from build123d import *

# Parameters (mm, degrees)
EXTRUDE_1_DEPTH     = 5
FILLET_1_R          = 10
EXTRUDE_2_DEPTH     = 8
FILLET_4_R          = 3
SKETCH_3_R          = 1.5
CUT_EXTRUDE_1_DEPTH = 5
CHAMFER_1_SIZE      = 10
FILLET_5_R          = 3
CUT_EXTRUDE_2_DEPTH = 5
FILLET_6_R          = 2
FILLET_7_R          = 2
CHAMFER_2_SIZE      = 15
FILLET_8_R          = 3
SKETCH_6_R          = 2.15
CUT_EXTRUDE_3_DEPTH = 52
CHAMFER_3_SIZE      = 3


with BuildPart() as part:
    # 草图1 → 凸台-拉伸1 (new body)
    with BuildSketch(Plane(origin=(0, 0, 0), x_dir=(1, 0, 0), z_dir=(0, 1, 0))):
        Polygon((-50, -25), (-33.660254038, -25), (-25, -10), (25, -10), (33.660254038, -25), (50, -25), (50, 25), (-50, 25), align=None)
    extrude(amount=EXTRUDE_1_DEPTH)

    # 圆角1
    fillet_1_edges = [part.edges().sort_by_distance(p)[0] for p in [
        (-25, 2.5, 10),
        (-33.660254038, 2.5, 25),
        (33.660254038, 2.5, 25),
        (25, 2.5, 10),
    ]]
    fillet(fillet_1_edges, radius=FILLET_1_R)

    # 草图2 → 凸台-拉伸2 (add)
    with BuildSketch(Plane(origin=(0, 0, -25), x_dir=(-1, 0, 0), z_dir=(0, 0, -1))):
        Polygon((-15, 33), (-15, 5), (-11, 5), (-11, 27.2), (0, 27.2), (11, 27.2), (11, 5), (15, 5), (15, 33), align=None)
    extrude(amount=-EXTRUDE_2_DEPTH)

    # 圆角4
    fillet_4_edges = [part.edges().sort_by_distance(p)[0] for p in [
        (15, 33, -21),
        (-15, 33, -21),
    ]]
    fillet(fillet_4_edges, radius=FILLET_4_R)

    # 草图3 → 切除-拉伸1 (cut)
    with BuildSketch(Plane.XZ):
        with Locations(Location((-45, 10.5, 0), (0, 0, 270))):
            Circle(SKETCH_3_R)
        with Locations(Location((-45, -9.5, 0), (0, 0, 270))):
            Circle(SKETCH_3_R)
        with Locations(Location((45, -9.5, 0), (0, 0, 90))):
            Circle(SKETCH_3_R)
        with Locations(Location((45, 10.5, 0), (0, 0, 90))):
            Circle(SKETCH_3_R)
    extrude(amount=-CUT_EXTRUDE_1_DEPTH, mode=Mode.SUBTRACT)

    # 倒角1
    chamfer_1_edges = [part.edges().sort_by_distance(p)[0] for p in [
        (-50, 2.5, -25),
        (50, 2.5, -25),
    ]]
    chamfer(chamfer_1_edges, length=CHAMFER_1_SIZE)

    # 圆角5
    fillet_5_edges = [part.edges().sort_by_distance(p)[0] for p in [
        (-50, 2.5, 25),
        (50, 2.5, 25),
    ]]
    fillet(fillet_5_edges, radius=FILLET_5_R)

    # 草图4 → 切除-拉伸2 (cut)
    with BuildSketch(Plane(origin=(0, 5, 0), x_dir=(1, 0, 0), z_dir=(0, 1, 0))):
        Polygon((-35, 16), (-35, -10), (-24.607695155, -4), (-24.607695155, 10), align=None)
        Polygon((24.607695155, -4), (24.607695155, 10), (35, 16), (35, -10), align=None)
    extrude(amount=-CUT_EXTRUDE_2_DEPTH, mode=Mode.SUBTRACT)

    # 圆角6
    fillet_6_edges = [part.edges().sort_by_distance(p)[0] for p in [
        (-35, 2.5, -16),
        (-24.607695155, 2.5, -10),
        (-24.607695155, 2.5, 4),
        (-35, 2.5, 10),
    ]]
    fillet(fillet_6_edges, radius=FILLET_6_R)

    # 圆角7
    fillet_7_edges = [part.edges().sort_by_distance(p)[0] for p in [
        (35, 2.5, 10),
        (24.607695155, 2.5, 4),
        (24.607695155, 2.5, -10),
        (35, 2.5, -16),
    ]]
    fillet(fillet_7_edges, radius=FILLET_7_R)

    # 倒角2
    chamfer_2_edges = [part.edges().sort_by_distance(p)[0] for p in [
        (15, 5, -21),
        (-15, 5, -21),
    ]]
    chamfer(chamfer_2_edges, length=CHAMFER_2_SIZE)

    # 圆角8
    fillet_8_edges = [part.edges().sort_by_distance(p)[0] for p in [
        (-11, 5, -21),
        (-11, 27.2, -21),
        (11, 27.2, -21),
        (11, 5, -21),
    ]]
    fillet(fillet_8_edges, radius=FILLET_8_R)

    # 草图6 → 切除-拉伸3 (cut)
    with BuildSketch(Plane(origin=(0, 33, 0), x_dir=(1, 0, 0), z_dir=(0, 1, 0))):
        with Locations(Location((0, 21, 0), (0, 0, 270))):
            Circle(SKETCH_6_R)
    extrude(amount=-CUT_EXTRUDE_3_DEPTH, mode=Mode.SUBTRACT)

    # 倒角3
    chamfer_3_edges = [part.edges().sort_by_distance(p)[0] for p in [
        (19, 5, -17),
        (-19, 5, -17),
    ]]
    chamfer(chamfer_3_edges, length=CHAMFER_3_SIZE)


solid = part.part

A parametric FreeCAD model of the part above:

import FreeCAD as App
import Part
import Sketcher
from FreeCAD import Vector
Q = App.Units.Quantity


def edges_at(feature, points):
    """Names of the edges that pass closest to the given points."""
    edges = feature.Shape.Edges
    near = lambda p: min(range(len(edges)), key=lambda i: edges[i].distToShape(Part.Vertex(*p))[0])
    return sorted({f"Edge{near(p) + 1}" for p in points})


def add_polygon(sketch, points):
    """Adds a closed chain of lines whose ends are joined by coincident constraints."""
    first, n = sketch.GeometryCount, len(points)
    for a, b in zip(points, points[1:] + points[:1]):
        sketch.addGeometry(Part.LineSegment(App.Vector(*a, 0), App.Vector(*b, 0)), False)
    for i in range(n):
        sketch.addConstraint(Sketcher.Constraint("Coincident", first + i, 2, first + (i + 1) % n, 1))

doc = App.newDocument("Part")
body = doc.addObject("PartDesign::Body", "Body")

# Sketch on XZ plane
sketch1 = body.newObject("Sketcher::SketchObject", "Sketch")
sketch1.AttachmentSupport = (doc.getObject("XZ_Plane"), [""])
sketch1.MapMode = "FlatFace"
add_polygon(sketch1, [(-50, 25), (-34, 25), (-25, 10), (25, 10), (34, 25), (50, 25), (50, -25), (-50, -25)])  # lines 0-7
sketch1.addConstraint([
    Sketcher.Constraint("Horizontal", 0),
    Sketcher.Constraint("Horizontal", 2),
    Sketcher.Constraint("Horizontal", 4),
    Sketcher.Constraint("Vertical", 5),
    Sketcher.Constraint("Horizontal", 6),
    Sketcher.Constraint("Vertical", 7),
    Sketcher.Constraint("Symmetric", 4, 2, 6, 2, -1, 1),
    Sketcher.Constraint("Symmetric", 0, 2, 3, 2, -2),
    Sketcher.Constraint("Equal", 2, 5),
    Sketcher.Constraint("Equal", 1, 3),
    Sketcher.Constraint("DistanceX", 2, 1, 2, 2, Q("50 mm")),
    Sketcher.Constraint("DistanceX", 6, 2, 6, 1, Q("100 mm")),
    Sketcher.Constraint("Angle", 1, Q("-60 deg")),
    Sketcher.Constraint("DistanceY", -1, 1, 1, 2, Q("10 mm")),
])
pad1 = body.newObject("PartDesign::Pad", "Pad")
pad1.Profile = sketch1
pad1.Length = 5
pad1.Reversed = True
doc.recompute()

fillet = body.newObject("PartDesign::Fillet", "Fillet")
fillet.Base = (pad1, edges_at(pad1, [
    (-25, 2.5, 10),
    (-33.66, 2.5, 25),
    (33.66, 2.5, 25),
    (25, 2.5, 10),
]))
fillet.Radius = 10

# Sketch on XY plane
sketch2 = body.newObject("Sketcher::SketchObject", "Sketch001")
sketch2.AttachmentSupport = (doc.getObject("XY_Plane"), [""])
sketch2.MapMode = "FlatFace"
sketch2.AttachmentOffset = App.Placement(Vector(0, 0, -25), App.Rotation())
add_polygon(sketch2, [(15, 33), (15, 5), (11, 5), (11, 27.2), (-11, 27.2), (-11, 5), (-15, 5), (-15, 33)])  # lines 0-7
sketch2.addConstraint([
    Sketcher.Constraint("Vertical", 0),
    Sketcher.Constraint("Horizontal", 1),
    Sketcher.Constraint("Vertical", 2),
    Sketcher.Constraint("Horizontal", 3),
    Sketcher.Constraint("Vertical", 4),
    Sketcher.Constraint("Horizontal", 5),
    Sketcher.Constraint("Vertical", 6),
    Sketcher.Constraint("Horizontal", 7),
    Sketcher.Constraint("Symmetric", 1, 2, 4, 2, -2),
    Sketcher.Constraint("Equal", 1, 5),
    Sketcher.Constraint("DistanceX", 1, 2, 1, 1, Q("4 mm")),
    Sketcher.Constraint("DistanceX", 3, 2, 3, 1, Q("22 mm")),
    Sketcher.Constraint("DistanceY", 0, 2, 0, 1, Q("28 mm")),
    Sketcher.Constraint("DistanceY", 2, 1, 2, 2, Q("22.2 mm")),
    Sketcher.Constraint("DistanceY", -1, 1, 0, 2, Q("5 mm")),
])
pad2 = body.newObject("PartDesign::Pad", "Pad001")
pad2.Profile = sketch2
pad2.Length = 8
doc.recompute()

fillet2 = body.newObject("PartDesign::Fillet", "Fillet001")
fillet2.Base = (pad2, edges_at(pad2, [(15, 33, -21), (-15, 33, -21)]))
fillet2.Radius = 3

# Sketch on XZ plane
sketch3 = body.newObject("Sketcher::SketchObject", "Sketch002")
sketch3.AttachmentSupport = (doc.getObject("XZ_Plane"), [""])
sketch3.MapMode = "FlatFace"
sketch3.addGeometry([
    Part.Circle(Vector(-45, 10.5, 0), Vector(0, 0, 1), 1.5),
    Part.Circle(Vector(-45, -9.5, 0), Vector(0, 0, 1), 1.5),
    Part.Circle(Vector(45, -9.5, 0), Vector(0, 0, 1), 1.5),
    Part.Circle(Vector(45, 10.5, 0), Vector(0, 0, 1), 1.5),
], False)
sketch3.addConstraint([
    Sketcher.Constraint("Equal", 0, 1),
    Sketcher.Constraint("Equal", 1, 2),
    Sketcher.Constraint("Equal", 2, 3),
    Sketcher.Constraint("Symmetric", 1, 3, 2, 3, -2),
    Sketcher.Constraint("Symmetric", 0, 3, 3, 3, -2),
    Sketcher.Constraint("Vertical", 0, 3, 1, 3),
    Sketcher.Constraint("Diameter", 0, Q("3 mm")),
    Sketcher.Constraint("DistanceX", 0, 3, -1, 1, Q("45 mm")),
    Sketcher.Constraint("DistanceY", 1, 3, 0, 3, Q("20 mm")),
    Sketcher.Constraint("DistanceY", -1, 1, 0, 3, Q("10.5 mm")),
])
pocket1 = body.newObject("PartDesign::Pocket", "Pocket")
pocket1.Profile = sketch3
pocket1.Length = 5
doc.recompute()

chamfer = body.newObject("PartDesign::Chamfer", "Chamfer")
chamfer.Base = (pocket1, edges_at(pocket1, [(-50, 2.5, -25), (50, 2.5, -25)]))
chamfer.Size = 10
doc.recompute()

fillet3 = body.newObject("PartDesign::Fillet", "Fillet002")
fillet3.Base = (chamfer, edges_at(chamfer, [(-50, 2.5, 25), (50, 2.5, 25)]))
fillet3.Radius = 3

# Sketch on XZ plane
sketch4 = body.newObject("Sketcher::SketchObject", "Sketch003")
sketch4.AttachmentSupport = (doc.getObject("XZ_Plane"), [""])
sketch4.MapMode = "FlatFace"
sketch4.AttachmentOffset = App.Placement(Vector(0, 0, -5), App.Rotation())
add_polygon(sketch4, [(-35, -16), (-35, 10), (-25, 4), (-25, -10)])  # lines 0-3
add_polygon(sketch4, [(25, -10), (25, 4), (35, 10), (35, -16)])  # lines 4-7
sketch4.addConstraint([
    Sketcher.Constraint("Vertical", 0),
    Sketcher.Constraint("Vertical", 2),
    Sketcher.Constraint("Vertical", 4),
    Sketcher.Constraint("Vertical", 6),
    Sketcher.Constraint("Symmetric", 1, 2, 4, 2, -2),
    Sketcher.Constraint("Symmetric", 0, 2, 5, 2, -2),
    Sketcher.Constraint("Parallel", 3, 5),
    Sketcher.Constraint("Parallel", 1, 7),
    Sketcher.Constraint("Horizontal", 3, 2, 6, 2),
    Sketcher.Constraint("DistanceY", 0, 1, 0, 2, Q("26 mm")),
    Sketcher.Constraint("DistanceY", 2, 2, 2, 1, Q("14 mm")),
    Sketcher.Constraint("Angle", 1, Q("-30 deg")),
    Sketcher.Constraint("DistanceX", 0, 2, -1, 1, Q("35 mm")),
    Sketcher.Constraint("DistanceY", -1, 1, 0, 2, Q("10 mm")),
])
pocket2 = body.newObject("PartDesign::Pocket", "Pocket001")
pocket2.Profile = sketch4
pocket2.Length = 5
pocket2.Reversed = True
doc.recompute()

fillet4 = body.newObject("PartDesign::Fillet", "Fillet003")
fillet4.Base = (pocket2, edges_at(pocket2, [
    (-35, 2.5, -16),
    (-24.608, 2.5, -10),
    (-24.608, 2.5, 4),
    (-35, 2.5, 10),
]))
fillet4.Radius = 2
doc.recompute()

fillet5 = body.newObject("PartDesign::Fillet", "Fillet004")
fillet5.Base = (fillet4, edges_at(fillet4, [
    (35, 2.5, 10),
    (24.608, 2.5, 4),
    (24.608, 2.5, -10),
    (35, 2.5, -16),
]))
fillet5.Radius = 2
doc.recompute()

chamfer2 = body.newObject("PartDesign::Chamfer", "Chamfer001")
chamfer2.Base = (fillet5, edges_at(fillet5, [(15, 5, -21), (-15, 5, -21)]))
chamfer2.Size = 15
doc.recompute()

fillet6 = body.newObject("PartDesign::Fillet", "Fillet005")
fillet6.Base = (chamfer2, edges_at(chamfer2, [
    (-11, 5, -21),
    (-11, 27.2, -21),
    (11, 27.2, -21),
    (11, 5, -21),
]))
fillet6.Radius = 3

# Sketch on XZ plane
sketch5 = body.newObject("Sketcher::SketchObject", "Sketch004")
sketch5.AttachmentSupport = (doc.getObject("XZ_Plane"), [""])
sketch5.MapMode = "FlatFace"
sketch5.AttachmentOffset = App.Placement(Vector(0, 0, -33), App.Rotation())
sketch5.addGeometry(Part.Circle(Vector(0, -21, 0), Vector(0, 0, 1), 2.1), False)
sketch5.addConstraint([
    Sketcher.Constraint("PointOnObject", 0, 3, -2),
    Sketcher.Constraint("Diameter", 0, Q("4.3 mm")),
    Sketcher.Constraint("DistanceY", 0, 3, -1, 1, Q("21 mm")),
])
pocket3 = body.newObject("PartDesign::Pocket", "Pocket002")
pocket3.Profile = sketch5
pocket3.Length = 52
pocket3.Reversed = True
doc.recompute()

chamfer3 = body.newObject("PartDesign::Chamfer", "Chamfer002")
chamfer3.Base = (pocket3, edges_at(pocket3, [(19, 5, -17), (-19, 5, -17)]))
chamfer3.Size = 3

doc.recompute()
